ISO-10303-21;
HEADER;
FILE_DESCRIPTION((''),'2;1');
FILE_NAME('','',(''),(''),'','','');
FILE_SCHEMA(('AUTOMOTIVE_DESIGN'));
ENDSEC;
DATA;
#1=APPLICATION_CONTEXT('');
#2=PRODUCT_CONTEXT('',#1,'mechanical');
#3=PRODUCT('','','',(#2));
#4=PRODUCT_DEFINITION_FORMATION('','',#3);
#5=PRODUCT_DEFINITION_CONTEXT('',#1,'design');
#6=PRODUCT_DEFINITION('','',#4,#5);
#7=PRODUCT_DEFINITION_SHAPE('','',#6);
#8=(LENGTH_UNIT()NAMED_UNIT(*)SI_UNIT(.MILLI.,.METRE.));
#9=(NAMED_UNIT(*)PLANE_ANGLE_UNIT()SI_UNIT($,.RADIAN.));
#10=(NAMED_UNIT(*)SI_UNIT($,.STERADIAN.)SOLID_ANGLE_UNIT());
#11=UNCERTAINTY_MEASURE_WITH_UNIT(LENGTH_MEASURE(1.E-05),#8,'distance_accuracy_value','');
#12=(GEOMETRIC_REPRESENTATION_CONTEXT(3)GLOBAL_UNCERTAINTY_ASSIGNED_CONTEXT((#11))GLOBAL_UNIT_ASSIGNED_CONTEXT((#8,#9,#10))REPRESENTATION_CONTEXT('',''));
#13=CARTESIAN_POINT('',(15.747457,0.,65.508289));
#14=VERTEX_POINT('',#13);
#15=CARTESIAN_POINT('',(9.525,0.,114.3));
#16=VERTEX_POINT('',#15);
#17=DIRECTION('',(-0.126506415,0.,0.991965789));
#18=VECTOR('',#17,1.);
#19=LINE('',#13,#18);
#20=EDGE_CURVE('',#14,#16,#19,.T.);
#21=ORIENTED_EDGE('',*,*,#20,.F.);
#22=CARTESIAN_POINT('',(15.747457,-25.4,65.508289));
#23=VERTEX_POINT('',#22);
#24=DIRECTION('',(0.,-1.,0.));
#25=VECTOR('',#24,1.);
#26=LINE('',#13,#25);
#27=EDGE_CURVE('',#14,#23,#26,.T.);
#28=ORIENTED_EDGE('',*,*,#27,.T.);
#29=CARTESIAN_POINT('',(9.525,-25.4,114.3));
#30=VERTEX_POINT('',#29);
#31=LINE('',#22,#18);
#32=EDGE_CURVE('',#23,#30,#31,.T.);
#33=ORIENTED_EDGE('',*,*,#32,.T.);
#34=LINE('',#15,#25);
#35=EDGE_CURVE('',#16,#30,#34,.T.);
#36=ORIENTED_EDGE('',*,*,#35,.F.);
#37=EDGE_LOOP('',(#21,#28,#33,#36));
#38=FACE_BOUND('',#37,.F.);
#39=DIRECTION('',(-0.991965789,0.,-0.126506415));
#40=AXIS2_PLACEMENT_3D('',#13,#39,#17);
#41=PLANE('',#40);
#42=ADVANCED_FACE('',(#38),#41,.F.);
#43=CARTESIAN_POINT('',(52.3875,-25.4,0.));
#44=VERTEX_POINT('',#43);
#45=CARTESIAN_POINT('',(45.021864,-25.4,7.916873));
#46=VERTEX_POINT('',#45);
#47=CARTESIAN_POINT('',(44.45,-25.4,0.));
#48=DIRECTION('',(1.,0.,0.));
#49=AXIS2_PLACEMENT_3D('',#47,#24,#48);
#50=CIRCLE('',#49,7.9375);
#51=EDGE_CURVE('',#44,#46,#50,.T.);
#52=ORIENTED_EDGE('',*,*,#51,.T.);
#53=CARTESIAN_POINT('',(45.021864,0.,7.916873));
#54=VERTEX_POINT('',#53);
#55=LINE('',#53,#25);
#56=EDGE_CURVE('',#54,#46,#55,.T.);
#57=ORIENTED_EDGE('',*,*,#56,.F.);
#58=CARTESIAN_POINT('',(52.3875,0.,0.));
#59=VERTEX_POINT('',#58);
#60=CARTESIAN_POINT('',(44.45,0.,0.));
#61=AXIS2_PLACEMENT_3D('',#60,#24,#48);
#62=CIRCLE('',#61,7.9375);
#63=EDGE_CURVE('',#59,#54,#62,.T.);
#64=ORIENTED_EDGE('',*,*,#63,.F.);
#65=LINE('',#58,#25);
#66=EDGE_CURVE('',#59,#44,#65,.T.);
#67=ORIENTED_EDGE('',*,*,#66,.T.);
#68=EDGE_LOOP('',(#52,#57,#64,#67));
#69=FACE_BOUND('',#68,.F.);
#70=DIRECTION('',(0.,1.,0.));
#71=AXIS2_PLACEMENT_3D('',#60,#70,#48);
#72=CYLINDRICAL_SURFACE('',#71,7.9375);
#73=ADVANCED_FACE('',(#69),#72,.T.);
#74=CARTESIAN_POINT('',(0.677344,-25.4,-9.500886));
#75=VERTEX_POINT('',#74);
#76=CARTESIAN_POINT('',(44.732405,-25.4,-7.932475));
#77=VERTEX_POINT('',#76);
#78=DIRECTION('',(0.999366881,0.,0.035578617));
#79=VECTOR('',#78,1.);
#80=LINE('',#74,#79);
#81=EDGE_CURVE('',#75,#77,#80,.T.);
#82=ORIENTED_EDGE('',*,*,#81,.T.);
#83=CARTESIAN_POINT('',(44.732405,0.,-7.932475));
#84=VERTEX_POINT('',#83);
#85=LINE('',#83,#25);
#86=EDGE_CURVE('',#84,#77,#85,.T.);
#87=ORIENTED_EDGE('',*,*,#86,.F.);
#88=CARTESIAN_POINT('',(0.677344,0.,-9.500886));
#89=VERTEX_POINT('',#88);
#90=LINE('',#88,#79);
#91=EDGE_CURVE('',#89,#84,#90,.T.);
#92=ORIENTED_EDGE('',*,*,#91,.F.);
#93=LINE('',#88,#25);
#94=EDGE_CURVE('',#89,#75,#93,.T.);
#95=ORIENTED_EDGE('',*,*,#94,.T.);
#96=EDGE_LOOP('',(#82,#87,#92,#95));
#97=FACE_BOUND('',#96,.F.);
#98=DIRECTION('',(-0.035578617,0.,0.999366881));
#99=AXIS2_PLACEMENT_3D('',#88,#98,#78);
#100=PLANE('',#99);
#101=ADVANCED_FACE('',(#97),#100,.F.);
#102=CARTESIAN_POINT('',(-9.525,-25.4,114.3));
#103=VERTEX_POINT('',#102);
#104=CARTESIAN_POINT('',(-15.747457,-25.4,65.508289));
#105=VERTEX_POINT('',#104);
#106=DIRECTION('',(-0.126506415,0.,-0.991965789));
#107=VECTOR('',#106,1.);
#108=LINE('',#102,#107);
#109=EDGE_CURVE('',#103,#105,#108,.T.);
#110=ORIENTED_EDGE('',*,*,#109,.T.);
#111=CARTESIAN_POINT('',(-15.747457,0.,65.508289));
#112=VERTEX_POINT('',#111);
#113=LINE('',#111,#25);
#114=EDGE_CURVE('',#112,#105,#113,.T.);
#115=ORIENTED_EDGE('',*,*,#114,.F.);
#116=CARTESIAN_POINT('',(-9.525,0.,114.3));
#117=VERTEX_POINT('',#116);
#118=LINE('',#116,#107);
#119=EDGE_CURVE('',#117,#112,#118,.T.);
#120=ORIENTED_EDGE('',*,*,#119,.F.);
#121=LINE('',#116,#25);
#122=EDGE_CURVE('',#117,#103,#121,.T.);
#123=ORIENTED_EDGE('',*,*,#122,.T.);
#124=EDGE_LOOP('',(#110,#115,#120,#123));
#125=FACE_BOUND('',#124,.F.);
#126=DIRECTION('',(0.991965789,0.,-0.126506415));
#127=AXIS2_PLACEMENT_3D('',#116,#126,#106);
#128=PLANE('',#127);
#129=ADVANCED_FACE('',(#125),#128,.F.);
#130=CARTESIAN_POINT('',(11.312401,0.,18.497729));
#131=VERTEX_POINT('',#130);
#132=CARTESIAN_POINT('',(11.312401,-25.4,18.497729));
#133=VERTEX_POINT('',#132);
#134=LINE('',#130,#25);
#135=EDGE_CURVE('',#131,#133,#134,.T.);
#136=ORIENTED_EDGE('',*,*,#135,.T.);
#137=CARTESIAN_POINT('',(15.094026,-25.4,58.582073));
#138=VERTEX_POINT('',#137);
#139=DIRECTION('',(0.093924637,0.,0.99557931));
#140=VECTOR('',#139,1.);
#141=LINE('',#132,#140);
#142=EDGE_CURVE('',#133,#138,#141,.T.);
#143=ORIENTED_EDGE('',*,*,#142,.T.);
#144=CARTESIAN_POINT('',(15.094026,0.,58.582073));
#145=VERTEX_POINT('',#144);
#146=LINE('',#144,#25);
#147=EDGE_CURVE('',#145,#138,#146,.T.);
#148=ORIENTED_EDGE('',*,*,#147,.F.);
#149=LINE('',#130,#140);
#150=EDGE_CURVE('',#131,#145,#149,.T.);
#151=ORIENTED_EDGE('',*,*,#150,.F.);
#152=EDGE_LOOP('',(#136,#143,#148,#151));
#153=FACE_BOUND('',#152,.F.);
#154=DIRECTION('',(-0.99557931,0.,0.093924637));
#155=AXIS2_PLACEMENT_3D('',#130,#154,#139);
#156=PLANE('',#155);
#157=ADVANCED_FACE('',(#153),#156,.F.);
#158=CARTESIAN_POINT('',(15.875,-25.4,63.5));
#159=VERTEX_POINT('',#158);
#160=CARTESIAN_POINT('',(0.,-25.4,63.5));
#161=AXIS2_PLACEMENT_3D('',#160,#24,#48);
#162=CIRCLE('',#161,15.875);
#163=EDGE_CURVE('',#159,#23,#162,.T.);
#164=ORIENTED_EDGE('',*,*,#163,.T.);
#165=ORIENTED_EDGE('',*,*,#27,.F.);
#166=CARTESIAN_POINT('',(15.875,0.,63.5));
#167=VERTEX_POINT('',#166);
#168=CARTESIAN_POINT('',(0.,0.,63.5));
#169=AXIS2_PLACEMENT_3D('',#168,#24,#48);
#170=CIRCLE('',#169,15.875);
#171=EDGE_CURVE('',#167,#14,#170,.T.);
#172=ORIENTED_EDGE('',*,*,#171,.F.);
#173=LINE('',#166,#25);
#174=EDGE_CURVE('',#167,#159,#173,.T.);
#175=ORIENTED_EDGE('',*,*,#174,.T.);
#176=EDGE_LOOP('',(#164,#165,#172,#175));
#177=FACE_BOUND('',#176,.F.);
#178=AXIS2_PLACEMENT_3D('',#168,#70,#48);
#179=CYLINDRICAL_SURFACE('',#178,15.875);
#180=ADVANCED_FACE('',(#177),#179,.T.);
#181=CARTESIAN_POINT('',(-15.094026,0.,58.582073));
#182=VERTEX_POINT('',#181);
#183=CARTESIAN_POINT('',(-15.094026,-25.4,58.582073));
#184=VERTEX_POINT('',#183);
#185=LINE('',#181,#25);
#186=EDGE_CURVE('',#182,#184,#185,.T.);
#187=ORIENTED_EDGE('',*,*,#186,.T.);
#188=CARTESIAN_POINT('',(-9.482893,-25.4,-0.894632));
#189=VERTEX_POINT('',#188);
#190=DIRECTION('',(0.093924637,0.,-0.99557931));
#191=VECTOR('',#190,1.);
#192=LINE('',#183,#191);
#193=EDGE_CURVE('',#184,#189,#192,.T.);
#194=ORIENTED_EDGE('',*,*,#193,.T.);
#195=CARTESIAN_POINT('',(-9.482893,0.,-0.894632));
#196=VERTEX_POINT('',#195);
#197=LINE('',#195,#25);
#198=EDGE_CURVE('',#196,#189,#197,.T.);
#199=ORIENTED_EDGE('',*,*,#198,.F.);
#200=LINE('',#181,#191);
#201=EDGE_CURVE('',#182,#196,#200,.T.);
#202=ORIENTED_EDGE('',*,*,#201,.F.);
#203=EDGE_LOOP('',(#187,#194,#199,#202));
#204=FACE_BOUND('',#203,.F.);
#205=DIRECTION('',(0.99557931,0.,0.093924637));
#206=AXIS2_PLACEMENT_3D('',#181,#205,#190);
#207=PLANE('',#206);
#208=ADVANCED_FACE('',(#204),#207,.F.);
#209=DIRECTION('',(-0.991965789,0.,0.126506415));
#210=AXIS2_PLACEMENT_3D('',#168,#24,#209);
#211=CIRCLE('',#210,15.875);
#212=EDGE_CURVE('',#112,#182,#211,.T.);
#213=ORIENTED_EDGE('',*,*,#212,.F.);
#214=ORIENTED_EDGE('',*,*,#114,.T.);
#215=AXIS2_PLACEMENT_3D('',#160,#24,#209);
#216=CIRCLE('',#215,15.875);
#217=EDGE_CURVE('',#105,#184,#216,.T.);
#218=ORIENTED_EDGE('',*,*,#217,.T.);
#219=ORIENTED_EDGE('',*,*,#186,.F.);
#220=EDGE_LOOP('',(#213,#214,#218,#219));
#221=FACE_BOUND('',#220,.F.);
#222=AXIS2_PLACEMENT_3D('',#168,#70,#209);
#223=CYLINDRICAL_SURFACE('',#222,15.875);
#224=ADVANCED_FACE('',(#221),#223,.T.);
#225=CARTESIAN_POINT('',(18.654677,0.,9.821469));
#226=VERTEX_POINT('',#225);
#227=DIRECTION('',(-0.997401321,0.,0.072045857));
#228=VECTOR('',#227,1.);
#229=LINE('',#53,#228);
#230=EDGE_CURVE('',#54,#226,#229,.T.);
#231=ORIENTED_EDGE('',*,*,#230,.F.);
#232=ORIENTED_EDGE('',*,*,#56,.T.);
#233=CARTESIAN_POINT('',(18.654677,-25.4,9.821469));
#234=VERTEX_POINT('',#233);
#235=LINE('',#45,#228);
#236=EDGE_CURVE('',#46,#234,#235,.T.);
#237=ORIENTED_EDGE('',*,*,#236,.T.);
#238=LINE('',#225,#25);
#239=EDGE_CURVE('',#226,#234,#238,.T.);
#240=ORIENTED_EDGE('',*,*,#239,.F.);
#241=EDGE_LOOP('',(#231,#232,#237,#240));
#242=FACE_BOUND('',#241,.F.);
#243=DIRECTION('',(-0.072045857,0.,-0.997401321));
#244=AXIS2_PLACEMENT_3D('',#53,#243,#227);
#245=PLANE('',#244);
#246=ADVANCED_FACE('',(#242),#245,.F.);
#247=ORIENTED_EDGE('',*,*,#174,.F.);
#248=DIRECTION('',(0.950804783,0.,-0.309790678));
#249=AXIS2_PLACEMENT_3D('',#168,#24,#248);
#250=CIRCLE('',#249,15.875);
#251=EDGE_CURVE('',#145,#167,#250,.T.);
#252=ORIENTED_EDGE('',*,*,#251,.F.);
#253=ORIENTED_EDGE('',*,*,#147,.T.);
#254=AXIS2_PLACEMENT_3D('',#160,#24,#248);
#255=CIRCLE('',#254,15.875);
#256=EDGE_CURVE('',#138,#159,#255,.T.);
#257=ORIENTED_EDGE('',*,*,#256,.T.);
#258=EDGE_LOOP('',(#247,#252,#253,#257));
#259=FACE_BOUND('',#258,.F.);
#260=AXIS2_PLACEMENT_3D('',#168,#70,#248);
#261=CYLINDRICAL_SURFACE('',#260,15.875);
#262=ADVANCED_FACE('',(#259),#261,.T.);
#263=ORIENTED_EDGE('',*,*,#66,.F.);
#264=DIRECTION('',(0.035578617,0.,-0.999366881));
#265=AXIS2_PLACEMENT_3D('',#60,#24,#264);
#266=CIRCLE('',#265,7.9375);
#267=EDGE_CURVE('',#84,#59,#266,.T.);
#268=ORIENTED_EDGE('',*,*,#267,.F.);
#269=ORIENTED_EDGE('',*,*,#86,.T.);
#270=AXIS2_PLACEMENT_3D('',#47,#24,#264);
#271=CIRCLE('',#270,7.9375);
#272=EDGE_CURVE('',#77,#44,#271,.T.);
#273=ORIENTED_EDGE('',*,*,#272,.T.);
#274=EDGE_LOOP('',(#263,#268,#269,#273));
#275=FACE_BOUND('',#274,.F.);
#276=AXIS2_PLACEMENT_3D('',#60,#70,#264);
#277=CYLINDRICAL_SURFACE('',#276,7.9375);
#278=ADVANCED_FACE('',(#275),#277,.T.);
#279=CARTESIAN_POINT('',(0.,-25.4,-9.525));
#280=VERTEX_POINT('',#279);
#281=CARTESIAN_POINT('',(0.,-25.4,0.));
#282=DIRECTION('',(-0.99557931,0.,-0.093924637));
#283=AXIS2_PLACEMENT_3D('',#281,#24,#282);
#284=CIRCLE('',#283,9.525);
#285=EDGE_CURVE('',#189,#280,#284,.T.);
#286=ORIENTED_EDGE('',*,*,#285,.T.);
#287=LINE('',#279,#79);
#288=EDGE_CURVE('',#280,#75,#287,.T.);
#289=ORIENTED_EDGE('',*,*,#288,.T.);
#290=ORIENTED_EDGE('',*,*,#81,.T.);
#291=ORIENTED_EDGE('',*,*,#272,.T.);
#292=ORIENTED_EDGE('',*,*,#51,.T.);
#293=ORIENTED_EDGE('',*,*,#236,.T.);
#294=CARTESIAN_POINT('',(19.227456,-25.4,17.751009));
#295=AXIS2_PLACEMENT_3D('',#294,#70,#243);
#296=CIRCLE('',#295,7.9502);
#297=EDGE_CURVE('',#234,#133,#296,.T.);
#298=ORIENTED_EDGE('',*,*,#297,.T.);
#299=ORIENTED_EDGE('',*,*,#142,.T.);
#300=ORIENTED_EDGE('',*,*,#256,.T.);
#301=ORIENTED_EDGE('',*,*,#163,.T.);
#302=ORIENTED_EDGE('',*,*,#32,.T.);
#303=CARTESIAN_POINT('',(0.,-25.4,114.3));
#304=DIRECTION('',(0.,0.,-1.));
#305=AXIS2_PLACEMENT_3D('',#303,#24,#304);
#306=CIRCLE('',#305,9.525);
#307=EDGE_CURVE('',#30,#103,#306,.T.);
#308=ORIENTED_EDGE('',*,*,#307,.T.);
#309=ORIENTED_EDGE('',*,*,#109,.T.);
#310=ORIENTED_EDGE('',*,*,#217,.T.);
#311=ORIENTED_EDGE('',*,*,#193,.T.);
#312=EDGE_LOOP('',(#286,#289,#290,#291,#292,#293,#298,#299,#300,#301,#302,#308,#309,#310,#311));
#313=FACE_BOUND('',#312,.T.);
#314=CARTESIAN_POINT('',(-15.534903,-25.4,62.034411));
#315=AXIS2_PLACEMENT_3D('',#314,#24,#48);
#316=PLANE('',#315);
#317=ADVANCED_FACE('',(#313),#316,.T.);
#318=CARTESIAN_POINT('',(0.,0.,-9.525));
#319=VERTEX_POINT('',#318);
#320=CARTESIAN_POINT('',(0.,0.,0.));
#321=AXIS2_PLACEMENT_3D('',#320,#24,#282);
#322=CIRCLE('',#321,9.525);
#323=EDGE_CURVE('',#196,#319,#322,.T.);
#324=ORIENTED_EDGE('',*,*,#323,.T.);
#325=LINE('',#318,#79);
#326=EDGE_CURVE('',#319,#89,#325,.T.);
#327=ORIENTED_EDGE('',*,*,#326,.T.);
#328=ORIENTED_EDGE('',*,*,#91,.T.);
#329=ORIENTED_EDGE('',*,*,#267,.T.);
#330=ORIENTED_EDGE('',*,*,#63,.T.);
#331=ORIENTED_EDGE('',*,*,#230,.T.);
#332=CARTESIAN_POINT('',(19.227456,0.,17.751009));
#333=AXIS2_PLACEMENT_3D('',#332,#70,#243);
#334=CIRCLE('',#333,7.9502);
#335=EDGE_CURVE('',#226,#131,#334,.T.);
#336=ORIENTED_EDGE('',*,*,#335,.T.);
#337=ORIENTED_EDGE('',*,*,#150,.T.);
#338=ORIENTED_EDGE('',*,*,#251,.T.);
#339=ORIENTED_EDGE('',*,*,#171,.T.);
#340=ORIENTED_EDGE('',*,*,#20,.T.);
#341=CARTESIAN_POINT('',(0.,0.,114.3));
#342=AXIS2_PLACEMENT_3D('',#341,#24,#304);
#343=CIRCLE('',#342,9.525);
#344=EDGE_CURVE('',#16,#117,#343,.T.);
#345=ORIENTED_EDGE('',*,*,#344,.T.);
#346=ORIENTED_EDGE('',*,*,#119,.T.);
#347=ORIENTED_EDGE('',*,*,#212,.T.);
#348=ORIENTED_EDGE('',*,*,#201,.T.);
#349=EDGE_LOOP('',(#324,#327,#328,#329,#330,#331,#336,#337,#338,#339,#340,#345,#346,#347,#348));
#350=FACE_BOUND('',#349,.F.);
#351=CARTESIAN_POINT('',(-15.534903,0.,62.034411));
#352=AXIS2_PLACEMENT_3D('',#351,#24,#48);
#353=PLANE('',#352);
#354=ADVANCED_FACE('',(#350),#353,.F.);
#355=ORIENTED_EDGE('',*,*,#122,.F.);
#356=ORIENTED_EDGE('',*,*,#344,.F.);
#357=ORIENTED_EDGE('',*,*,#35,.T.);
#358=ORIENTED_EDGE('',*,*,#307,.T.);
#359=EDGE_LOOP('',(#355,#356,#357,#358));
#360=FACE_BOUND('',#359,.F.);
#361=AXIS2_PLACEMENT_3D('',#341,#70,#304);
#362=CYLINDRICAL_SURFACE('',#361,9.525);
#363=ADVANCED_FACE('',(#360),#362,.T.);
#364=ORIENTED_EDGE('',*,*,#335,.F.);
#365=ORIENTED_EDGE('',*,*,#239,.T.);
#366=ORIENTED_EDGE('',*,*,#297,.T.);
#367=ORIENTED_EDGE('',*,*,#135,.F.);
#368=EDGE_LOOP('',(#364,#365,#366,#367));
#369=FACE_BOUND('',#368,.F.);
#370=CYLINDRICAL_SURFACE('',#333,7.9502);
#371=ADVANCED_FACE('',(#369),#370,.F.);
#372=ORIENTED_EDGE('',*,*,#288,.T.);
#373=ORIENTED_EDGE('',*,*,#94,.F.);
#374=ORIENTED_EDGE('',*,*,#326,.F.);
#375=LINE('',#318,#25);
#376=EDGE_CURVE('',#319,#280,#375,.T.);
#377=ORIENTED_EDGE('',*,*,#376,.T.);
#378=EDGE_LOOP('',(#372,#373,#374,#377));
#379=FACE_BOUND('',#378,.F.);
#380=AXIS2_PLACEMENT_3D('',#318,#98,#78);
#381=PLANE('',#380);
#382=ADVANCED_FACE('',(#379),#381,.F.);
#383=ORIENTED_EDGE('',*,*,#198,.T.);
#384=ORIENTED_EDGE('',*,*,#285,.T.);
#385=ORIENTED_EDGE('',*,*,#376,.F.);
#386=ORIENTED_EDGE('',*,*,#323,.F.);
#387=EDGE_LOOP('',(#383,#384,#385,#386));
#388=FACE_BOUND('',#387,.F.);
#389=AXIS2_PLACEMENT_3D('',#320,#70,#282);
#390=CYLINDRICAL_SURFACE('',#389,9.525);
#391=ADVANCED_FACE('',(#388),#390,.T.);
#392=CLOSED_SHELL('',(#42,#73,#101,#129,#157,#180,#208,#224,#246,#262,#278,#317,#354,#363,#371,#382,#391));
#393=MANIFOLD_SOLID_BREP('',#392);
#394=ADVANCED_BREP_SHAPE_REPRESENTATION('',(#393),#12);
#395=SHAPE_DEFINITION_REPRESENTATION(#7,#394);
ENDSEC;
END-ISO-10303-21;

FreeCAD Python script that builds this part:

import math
import FreeCAD as App
import Part
import Sketcher
from FreeCAD import Vector
Q = App.Units.Quantity

doc = App.newDocument("Part")
body = doc.addObject("PartDesign::Body", "Body")

# Sketch on XZ plane
sketch1 = body.newObject("Sketcher::SketchObject", "Sketch")
sketch1.AttachmentSupport = (doc.getObject("XZ_Plane"), [""])
sketch1.MapMode = "FlatFace"
sketch1.addGeometry([
    Part.ArcOfCircle(Part.Circle(Vector(0, 63.5, 0), Vector(0, 0, 1), 15.875), math.radians(172.732242), math.radians(198.046616)),  # 0
    Part.LineSegment(Vector(-15.094026, 58.582073, 0), Vector(-9.482893, -0.894632, 0)),  # 1
    Part.ArcOfCircle(Part.Circle(Vector(0, 0, 0), Vector(0, 0, 1), 9.525), math.radians(-174.610571), math.radians(-90)),  # 2
    Part.LineSegment(Vector(0, -9.525, 0), Vector(0.677344, -9.500886, 0)),  # 3
    Part.LineSegment(Vector(0.677344, -9.500886, 0), Vector(44.732405, -7.932475, 0)),  # 4
    Part.ArcOfCircle(Part.Circle(Vector(44.45, 0, 0), Vector(0, 0, 1), 7.9375), math.radians(-87.961065), math.radians(0)),  # 5
    Part.ArcOfCircle(Part.Circle(Vector(44.45, 0, 0), Vector(0, 0, 1), 7.9375), math.radians(0), math.radians(85.868497)),  # 6
    Part.LineSegment(Vector(45.021864, 7.916873, 0), Vector(18.654677, 9.821469, 0)),  # 7
    Part.ArcOfCircle(Part.Circle(Vector(19.227456, 17.751009, 0), Vector(0, 0, 1), 7.9502), math.radians(174.610571), math.radians(265.868497)),  # 8
    Part.LineSegment(Vector(11.312401, 18.497729, 0), Vector(15.094026, 58.582073, 0)),  # 9
    Part.ArcOfCircle(Part.Circle(Vector(0, 63.5, 0), Vector(0, 0, 1), 15.875), math.radians(-18.046616), math.radians(0)),  # 10
    Part.ArcOfCircle(Part.Circle(Vector(0, 63.5, 0), Vector(0, 0, 1), 15.875), math.radians(0), math.radians(7.267758)),  # 11
    Part.LineSegment(Vector(15.747457, 65.508289, 0), Vector(9.525, 114.3, 0)),  # 12
    Part.ArcOfCircle(Part.Circle(Vector(0, 114.3, 0), Vector(0, 0, 1), 9.525), math.radians(0), math.radians(180)),  # 13
    Part.LineSegment(Vector(-9.525, 114.3, 0), Vector(-15.747457, 65.508289, 0)),  # 14
], False)
sketch1.addConstraint([
    Sketcher.Constraint("Coincident", 0, 2, 1, 1),
    Sketcher.Constraint("Tangent", 1, 2, 2, 1),
    Sketcher.Constraint("Coincident", 2, 2, 3, 1),
    Sketcher.Constraint("Coincident", 3, 2, 4, 1),
    Sketcher.Constraint("Tangent", 4, 2, 5, 1),
    Sketcher.Constraint("Tangent", 5, 2, 6, 1),
    Sketcher.Constraint("Tangent", 6, 2, 7, 1),
    Sketcher.Constraint("Tangent", 7, 2, 8, 2),
    Sketcher.Constraint("Tangent", 8, 1, 9, 1),
    Sketcher.Constraint("Coincident", 9, 2, 10, 1),
    Sketcher.Constraint("Tangent", 10, 2, 11, 1),
    Sketcher.Constraint("Tangent", 11, 2, 12, 1),
    Sketcher.Constraint("Coincident", 12, 2, 13, 1),
    Sketcher.Constraint("Coincident", 13, 2, 14, 1),
    Sketcher.Constraint("Tangent", 14, 2, 0, 1),
    Sketcher.Constraint("Coincident", 2, 3, -1, 1),
    Sketcher.Constraint("Coincident", 10, 3, 0, 3),
    Sketcher.Constraint("Equal", 5, 6),
    Sketcher.Constraint("Equal", 0, 10),
    Sketcher.Constraint("Equal", 10, 11),
    Sketcher.Constraint("Equal", 2, 13),
    Sketcher.Constraint("Symmetric", 0, 2, 9, 2, -2),
    Sketcher.Constraint("Symmetric", 12, 2, 13, 2, -2),
    Sketcher.Constraint("PointOnObject", 5, 3, -1),
    Sketcher.Constraint("PointOnObject", 2, 2, -2),
    Sketcher.Constraint("PointOnObject", 5, 2, -1),
    Sketcher.Constraint("Parallel", 3, 4),
    Sketcher.Constraint("Horizontal", 11, 3, 10, 2),
    Sketcher.Constraint("Horizontal", 13, 3, 12, 2),
    Sketcher.Constraint("Radius", 0, Q("0.625 in")),
    Sketcher.Constraint("Radius", 2, Q("0.375 in")),
    Sketcher.Constraint("Radius", 5, Q("0.3125 in")),
    Sketcher.Constraint("Radius", 8, Q("0.313 in")),
    Sketcher.Constraint("DistanceY", 11, 3, 13, 3, Q("2 in")),
    Sketcher.Constraint("DistanceY", -1, 1, 0, 3, Q("2.5 in")),
    Sketcher.Constraint("DistanceX", -1, 1, 5, 3, Q("1.75 in")),
    Sketcher.Constraint("Distance", 1, Q("2.352 in")),
    Sketcher.Constraint("DistanceX", -1, 1, 8, 1, 11.312401),
    Sketcher.Constraint("Distance", 4, 44.082972),
    Sketcher.Constraint("Distance", 9, 40.262332),
])
pad1 = body.newObject("PartDesign::Pad", "Pad")
pad1.Profile = sketch1
pad1.Length = Q("1 in")

doc.recompute()
